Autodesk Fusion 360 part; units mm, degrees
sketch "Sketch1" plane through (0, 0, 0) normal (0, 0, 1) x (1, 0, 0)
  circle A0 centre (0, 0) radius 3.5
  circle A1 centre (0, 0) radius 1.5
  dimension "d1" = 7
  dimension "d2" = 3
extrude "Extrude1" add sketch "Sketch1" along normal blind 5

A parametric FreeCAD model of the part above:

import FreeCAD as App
import Part
import Sketcher

V = App.Vector

doc = App.newDocument("Part")
params = doc.addObject("Spreadsheet::Sheet", "Params")
for row, (alias, value) in enumerate([
    ("sketch1_diameter", "7 mm"),
    ("sketch1_diameter2", "3 mm"),
    ("pad1_length", "5 mm"),
], start=1):
    params.set(f"A{row}", alias)
    params.set(f"B{row}", "=" + value)
    params.setAlias(f"B{row}", alias)

body = doc.addObject("PartDesign::Body", "Body")

sketch1 = body.newObject("Sketcher::SketchObject", "Sketch")
sketch1.AttachmentSupport = (doc.getObject("XY_Plane"), [""])
sketch1.MapMode = "FlatFace"
sketch1.addGeometry([
    Part.Circle(V(0, 0, 0), V(0, 0, 1), 3.5),
    Part.Circle(V(0, 0, 0), V(0, 0, 1), 1.5),
], False)
sketch1.addConstraint([
    Sketcher.Constraint("Coincident", 0, 3, -1, 1),
    Sketcher.Constraint("Coincident", 1, 3, -1, 1),
    Sketcher.Constraint("Diameter", 0, 7.0),
    Sketcher.Constraint("Diameter", 1, 3.0),
])
sketch1.setExpression("Constraints[2]", "Params.sketch1_diameter")
sketch1.setExpression("Constraints[3]", "Params.sketch1_diameter2")
pad1 = body.newObject("PartDesign::Pad", "Pad")
pad1.Profile = sketch1
pad1.setExpression("Length", "Params.pad1_length")

doc.recompute()
